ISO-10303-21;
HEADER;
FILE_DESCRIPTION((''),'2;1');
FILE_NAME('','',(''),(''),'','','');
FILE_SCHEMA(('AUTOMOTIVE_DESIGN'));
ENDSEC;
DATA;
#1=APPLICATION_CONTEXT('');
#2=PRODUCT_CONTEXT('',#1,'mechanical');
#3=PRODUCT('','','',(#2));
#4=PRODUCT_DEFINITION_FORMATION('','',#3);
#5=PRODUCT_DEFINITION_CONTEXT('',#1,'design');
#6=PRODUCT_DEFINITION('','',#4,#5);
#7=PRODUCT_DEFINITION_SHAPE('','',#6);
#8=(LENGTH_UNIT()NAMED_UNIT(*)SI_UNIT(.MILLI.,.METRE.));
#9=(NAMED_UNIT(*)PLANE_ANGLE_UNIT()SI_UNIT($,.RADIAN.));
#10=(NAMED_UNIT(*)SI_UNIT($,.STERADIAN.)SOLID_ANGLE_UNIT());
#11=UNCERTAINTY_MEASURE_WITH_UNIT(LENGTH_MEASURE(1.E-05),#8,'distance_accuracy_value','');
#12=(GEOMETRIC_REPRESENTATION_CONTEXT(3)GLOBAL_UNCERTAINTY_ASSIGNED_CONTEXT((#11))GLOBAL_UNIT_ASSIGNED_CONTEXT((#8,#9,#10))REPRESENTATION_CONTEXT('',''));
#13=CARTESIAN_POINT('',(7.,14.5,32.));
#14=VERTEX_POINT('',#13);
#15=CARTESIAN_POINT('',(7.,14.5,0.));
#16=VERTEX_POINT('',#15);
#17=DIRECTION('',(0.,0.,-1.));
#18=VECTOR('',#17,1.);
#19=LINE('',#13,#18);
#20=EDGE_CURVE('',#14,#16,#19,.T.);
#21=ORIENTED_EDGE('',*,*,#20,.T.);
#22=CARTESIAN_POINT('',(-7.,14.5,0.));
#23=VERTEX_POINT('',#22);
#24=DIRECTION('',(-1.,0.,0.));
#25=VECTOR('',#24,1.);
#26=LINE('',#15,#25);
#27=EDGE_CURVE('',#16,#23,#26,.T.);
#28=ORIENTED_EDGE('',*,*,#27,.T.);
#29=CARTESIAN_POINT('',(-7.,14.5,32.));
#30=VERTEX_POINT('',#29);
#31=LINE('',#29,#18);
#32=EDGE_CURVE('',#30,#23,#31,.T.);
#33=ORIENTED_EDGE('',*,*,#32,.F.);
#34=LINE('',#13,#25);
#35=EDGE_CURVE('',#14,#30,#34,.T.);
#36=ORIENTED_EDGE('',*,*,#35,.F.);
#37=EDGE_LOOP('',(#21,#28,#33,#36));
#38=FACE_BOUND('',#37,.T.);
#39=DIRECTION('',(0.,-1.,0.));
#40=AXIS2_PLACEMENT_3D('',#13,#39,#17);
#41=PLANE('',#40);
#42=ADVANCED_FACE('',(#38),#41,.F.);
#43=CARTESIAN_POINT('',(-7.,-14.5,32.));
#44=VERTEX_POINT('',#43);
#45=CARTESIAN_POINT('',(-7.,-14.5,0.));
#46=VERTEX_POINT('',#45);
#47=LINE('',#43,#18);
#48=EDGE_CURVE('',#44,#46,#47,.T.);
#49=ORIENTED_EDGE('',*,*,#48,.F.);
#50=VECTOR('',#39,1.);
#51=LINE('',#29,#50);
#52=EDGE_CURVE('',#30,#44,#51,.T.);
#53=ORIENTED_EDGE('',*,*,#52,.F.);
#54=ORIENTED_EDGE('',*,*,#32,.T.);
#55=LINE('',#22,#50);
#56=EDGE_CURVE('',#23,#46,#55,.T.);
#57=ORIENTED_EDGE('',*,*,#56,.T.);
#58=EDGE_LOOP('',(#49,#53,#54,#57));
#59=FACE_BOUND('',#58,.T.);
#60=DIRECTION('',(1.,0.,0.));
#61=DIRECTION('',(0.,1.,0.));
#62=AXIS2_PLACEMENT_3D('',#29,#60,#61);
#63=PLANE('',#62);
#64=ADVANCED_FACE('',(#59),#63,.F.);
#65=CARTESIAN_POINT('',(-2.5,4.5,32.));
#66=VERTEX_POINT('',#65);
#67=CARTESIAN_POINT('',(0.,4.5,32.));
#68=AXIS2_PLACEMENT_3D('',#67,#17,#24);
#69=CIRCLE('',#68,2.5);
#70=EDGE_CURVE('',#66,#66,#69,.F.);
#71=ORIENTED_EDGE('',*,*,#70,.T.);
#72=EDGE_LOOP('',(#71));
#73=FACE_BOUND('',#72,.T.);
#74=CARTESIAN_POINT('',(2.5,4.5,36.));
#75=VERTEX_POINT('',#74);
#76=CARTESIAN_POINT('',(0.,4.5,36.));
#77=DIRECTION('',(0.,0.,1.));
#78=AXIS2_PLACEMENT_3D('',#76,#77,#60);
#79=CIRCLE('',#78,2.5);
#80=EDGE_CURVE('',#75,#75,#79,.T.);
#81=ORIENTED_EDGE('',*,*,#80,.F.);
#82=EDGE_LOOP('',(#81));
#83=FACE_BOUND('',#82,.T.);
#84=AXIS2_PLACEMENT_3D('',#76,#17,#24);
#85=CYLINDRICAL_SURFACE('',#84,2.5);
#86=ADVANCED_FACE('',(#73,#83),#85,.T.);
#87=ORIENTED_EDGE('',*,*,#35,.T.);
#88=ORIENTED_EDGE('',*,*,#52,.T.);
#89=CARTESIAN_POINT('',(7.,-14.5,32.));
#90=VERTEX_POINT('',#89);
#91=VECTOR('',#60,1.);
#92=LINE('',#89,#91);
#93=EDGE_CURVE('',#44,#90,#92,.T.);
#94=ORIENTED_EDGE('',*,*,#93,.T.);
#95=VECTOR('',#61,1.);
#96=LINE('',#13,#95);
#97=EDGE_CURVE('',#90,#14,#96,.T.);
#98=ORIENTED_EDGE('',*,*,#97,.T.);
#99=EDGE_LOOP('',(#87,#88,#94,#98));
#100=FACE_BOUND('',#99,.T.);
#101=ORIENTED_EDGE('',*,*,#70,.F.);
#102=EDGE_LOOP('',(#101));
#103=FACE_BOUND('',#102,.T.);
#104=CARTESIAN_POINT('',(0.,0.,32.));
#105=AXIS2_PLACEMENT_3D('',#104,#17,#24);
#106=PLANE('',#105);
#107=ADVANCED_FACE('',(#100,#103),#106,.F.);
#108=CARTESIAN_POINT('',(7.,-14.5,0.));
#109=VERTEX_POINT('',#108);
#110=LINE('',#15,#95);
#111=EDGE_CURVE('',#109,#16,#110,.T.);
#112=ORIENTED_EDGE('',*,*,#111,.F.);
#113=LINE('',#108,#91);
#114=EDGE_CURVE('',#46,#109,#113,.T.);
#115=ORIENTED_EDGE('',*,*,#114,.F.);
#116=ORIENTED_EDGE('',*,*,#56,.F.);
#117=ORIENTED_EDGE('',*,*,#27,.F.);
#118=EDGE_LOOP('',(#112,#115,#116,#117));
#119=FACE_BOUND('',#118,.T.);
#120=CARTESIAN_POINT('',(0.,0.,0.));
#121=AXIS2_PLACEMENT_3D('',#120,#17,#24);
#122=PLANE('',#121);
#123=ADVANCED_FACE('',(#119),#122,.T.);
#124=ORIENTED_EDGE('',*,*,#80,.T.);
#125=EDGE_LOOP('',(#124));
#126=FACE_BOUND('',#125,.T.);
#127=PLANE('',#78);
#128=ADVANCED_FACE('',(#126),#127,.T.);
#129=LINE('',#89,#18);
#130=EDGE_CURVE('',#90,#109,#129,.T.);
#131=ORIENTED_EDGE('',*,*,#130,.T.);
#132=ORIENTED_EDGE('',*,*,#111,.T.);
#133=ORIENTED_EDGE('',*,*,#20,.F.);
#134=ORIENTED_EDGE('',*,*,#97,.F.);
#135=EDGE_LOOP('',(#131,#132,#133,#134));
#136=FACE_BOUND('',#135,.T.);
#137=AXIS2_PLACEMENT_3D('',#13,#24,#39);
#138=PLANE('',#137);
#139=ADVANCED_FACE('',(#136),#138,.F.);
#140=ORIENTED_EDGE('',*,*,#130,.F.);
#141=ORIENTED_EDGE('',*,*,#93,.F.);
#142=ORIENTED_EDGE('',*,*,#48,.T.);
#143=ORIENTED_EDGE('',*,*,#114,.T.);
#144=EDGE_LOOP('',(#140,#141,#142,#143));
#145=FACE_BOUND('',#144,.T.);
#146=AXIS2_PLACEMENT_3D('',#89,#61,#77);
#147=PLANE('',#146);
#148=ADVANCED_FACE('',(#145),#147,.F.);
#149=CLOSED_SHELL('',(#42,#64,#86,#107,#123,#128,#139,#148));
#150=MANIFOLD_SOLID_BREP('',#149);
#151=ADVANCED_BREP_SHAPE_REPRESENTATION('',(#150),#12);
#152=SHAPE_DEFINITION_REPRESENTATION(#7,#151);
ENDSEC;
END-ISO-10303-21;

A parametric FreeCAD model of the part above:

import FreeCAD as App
import Part
import Sketcher
Q = App.Units.Quantity


def add_polygon(sketch, points):
    """Adds a closed chain of lines whose ends are joined by coincident constraints."""
    first, n = sketch.GeometryCount, len(points)
    for a, b in zip(points, points[1:] + points[:1]):
        sketch.addGeometry(Part.LineSegment(App.Vector(*a, 0), App.Vector(*b, 0)), False)
    for i in range(n):
        sketch.addConstraint(Sketcher.Constraint("Coincident", first + i, 2, first + (i + 1) % n, 1))

doc = App.newDocument("Part")
body = doc.addObject("PartDesign::Body", "Body")

# Sketch on XY plane
sketch1 = body.newObject("Sketcher::SketchObject", "Sketch")
sketch1.AttachmentSupport = (doc.getObject("XY_Plane"), [""])
sketch1.MapMode = "FlatFace"
add_polygon(sketch1, [(-7, 14), (-7, -14), (7, -14), (7, 14)])  # lines 0-3
sketch1.addConstraint([
    Sketcher.Constraint("Vertical", 0),
    Sketcher.Constraint("Horizontal", 1),
    Sketcher.Constraint("Vertical", 2),
    Sketcher.Constraint("Horizontal", 3),
    Sketcher.Constraint("Symmetric", 0, 2, 2, 2, -1, 1),
    Sketcher.Constraint("DistanceX", 1, 1, 1, 2, Q("14 mm")),
    Sketcher.Constraint("DistanceY", 0, 2, 0, 1, Q("29 mm")),
])
pad1 = body.newObject("PartDesign::Pad", "Pad")
pad1.Profile = sketch1
pad1.Length = 32

# Sketch on XY plane
sketch2 = body.newObject("Sketcher::SketchObject", "Sketch001")
sketch2.AttachmentSupport = (doc.getObject("XY_Plane"), [""])
sketch2.MapMode = "FlatFace"
sketch2.AttachmentOffset = App.Placement(App.Vector(0, 0, 32), App.Rotation())
sketch2.addGeometry(Part.Circle(App.Vector(0, 4.5, 0), App.Vector(0, 0, 1), 2.5), False)
sketch2.addConstraint([
    Sketcher.Constraint("PointOnObject", 0, 3, -2),
    Sketcher.Constraint("Diameter", 0, Q("5 mm")),
    Sketcher.Constraint("DistanceY", -1, 1, 0, 3, Q("4.5 mm")),
])
pad2 = body.newObject("PartDesign::Pad", "Pad001")
pad2.Profile = sketch2
pad2.Length = 4

doc.recompute()
